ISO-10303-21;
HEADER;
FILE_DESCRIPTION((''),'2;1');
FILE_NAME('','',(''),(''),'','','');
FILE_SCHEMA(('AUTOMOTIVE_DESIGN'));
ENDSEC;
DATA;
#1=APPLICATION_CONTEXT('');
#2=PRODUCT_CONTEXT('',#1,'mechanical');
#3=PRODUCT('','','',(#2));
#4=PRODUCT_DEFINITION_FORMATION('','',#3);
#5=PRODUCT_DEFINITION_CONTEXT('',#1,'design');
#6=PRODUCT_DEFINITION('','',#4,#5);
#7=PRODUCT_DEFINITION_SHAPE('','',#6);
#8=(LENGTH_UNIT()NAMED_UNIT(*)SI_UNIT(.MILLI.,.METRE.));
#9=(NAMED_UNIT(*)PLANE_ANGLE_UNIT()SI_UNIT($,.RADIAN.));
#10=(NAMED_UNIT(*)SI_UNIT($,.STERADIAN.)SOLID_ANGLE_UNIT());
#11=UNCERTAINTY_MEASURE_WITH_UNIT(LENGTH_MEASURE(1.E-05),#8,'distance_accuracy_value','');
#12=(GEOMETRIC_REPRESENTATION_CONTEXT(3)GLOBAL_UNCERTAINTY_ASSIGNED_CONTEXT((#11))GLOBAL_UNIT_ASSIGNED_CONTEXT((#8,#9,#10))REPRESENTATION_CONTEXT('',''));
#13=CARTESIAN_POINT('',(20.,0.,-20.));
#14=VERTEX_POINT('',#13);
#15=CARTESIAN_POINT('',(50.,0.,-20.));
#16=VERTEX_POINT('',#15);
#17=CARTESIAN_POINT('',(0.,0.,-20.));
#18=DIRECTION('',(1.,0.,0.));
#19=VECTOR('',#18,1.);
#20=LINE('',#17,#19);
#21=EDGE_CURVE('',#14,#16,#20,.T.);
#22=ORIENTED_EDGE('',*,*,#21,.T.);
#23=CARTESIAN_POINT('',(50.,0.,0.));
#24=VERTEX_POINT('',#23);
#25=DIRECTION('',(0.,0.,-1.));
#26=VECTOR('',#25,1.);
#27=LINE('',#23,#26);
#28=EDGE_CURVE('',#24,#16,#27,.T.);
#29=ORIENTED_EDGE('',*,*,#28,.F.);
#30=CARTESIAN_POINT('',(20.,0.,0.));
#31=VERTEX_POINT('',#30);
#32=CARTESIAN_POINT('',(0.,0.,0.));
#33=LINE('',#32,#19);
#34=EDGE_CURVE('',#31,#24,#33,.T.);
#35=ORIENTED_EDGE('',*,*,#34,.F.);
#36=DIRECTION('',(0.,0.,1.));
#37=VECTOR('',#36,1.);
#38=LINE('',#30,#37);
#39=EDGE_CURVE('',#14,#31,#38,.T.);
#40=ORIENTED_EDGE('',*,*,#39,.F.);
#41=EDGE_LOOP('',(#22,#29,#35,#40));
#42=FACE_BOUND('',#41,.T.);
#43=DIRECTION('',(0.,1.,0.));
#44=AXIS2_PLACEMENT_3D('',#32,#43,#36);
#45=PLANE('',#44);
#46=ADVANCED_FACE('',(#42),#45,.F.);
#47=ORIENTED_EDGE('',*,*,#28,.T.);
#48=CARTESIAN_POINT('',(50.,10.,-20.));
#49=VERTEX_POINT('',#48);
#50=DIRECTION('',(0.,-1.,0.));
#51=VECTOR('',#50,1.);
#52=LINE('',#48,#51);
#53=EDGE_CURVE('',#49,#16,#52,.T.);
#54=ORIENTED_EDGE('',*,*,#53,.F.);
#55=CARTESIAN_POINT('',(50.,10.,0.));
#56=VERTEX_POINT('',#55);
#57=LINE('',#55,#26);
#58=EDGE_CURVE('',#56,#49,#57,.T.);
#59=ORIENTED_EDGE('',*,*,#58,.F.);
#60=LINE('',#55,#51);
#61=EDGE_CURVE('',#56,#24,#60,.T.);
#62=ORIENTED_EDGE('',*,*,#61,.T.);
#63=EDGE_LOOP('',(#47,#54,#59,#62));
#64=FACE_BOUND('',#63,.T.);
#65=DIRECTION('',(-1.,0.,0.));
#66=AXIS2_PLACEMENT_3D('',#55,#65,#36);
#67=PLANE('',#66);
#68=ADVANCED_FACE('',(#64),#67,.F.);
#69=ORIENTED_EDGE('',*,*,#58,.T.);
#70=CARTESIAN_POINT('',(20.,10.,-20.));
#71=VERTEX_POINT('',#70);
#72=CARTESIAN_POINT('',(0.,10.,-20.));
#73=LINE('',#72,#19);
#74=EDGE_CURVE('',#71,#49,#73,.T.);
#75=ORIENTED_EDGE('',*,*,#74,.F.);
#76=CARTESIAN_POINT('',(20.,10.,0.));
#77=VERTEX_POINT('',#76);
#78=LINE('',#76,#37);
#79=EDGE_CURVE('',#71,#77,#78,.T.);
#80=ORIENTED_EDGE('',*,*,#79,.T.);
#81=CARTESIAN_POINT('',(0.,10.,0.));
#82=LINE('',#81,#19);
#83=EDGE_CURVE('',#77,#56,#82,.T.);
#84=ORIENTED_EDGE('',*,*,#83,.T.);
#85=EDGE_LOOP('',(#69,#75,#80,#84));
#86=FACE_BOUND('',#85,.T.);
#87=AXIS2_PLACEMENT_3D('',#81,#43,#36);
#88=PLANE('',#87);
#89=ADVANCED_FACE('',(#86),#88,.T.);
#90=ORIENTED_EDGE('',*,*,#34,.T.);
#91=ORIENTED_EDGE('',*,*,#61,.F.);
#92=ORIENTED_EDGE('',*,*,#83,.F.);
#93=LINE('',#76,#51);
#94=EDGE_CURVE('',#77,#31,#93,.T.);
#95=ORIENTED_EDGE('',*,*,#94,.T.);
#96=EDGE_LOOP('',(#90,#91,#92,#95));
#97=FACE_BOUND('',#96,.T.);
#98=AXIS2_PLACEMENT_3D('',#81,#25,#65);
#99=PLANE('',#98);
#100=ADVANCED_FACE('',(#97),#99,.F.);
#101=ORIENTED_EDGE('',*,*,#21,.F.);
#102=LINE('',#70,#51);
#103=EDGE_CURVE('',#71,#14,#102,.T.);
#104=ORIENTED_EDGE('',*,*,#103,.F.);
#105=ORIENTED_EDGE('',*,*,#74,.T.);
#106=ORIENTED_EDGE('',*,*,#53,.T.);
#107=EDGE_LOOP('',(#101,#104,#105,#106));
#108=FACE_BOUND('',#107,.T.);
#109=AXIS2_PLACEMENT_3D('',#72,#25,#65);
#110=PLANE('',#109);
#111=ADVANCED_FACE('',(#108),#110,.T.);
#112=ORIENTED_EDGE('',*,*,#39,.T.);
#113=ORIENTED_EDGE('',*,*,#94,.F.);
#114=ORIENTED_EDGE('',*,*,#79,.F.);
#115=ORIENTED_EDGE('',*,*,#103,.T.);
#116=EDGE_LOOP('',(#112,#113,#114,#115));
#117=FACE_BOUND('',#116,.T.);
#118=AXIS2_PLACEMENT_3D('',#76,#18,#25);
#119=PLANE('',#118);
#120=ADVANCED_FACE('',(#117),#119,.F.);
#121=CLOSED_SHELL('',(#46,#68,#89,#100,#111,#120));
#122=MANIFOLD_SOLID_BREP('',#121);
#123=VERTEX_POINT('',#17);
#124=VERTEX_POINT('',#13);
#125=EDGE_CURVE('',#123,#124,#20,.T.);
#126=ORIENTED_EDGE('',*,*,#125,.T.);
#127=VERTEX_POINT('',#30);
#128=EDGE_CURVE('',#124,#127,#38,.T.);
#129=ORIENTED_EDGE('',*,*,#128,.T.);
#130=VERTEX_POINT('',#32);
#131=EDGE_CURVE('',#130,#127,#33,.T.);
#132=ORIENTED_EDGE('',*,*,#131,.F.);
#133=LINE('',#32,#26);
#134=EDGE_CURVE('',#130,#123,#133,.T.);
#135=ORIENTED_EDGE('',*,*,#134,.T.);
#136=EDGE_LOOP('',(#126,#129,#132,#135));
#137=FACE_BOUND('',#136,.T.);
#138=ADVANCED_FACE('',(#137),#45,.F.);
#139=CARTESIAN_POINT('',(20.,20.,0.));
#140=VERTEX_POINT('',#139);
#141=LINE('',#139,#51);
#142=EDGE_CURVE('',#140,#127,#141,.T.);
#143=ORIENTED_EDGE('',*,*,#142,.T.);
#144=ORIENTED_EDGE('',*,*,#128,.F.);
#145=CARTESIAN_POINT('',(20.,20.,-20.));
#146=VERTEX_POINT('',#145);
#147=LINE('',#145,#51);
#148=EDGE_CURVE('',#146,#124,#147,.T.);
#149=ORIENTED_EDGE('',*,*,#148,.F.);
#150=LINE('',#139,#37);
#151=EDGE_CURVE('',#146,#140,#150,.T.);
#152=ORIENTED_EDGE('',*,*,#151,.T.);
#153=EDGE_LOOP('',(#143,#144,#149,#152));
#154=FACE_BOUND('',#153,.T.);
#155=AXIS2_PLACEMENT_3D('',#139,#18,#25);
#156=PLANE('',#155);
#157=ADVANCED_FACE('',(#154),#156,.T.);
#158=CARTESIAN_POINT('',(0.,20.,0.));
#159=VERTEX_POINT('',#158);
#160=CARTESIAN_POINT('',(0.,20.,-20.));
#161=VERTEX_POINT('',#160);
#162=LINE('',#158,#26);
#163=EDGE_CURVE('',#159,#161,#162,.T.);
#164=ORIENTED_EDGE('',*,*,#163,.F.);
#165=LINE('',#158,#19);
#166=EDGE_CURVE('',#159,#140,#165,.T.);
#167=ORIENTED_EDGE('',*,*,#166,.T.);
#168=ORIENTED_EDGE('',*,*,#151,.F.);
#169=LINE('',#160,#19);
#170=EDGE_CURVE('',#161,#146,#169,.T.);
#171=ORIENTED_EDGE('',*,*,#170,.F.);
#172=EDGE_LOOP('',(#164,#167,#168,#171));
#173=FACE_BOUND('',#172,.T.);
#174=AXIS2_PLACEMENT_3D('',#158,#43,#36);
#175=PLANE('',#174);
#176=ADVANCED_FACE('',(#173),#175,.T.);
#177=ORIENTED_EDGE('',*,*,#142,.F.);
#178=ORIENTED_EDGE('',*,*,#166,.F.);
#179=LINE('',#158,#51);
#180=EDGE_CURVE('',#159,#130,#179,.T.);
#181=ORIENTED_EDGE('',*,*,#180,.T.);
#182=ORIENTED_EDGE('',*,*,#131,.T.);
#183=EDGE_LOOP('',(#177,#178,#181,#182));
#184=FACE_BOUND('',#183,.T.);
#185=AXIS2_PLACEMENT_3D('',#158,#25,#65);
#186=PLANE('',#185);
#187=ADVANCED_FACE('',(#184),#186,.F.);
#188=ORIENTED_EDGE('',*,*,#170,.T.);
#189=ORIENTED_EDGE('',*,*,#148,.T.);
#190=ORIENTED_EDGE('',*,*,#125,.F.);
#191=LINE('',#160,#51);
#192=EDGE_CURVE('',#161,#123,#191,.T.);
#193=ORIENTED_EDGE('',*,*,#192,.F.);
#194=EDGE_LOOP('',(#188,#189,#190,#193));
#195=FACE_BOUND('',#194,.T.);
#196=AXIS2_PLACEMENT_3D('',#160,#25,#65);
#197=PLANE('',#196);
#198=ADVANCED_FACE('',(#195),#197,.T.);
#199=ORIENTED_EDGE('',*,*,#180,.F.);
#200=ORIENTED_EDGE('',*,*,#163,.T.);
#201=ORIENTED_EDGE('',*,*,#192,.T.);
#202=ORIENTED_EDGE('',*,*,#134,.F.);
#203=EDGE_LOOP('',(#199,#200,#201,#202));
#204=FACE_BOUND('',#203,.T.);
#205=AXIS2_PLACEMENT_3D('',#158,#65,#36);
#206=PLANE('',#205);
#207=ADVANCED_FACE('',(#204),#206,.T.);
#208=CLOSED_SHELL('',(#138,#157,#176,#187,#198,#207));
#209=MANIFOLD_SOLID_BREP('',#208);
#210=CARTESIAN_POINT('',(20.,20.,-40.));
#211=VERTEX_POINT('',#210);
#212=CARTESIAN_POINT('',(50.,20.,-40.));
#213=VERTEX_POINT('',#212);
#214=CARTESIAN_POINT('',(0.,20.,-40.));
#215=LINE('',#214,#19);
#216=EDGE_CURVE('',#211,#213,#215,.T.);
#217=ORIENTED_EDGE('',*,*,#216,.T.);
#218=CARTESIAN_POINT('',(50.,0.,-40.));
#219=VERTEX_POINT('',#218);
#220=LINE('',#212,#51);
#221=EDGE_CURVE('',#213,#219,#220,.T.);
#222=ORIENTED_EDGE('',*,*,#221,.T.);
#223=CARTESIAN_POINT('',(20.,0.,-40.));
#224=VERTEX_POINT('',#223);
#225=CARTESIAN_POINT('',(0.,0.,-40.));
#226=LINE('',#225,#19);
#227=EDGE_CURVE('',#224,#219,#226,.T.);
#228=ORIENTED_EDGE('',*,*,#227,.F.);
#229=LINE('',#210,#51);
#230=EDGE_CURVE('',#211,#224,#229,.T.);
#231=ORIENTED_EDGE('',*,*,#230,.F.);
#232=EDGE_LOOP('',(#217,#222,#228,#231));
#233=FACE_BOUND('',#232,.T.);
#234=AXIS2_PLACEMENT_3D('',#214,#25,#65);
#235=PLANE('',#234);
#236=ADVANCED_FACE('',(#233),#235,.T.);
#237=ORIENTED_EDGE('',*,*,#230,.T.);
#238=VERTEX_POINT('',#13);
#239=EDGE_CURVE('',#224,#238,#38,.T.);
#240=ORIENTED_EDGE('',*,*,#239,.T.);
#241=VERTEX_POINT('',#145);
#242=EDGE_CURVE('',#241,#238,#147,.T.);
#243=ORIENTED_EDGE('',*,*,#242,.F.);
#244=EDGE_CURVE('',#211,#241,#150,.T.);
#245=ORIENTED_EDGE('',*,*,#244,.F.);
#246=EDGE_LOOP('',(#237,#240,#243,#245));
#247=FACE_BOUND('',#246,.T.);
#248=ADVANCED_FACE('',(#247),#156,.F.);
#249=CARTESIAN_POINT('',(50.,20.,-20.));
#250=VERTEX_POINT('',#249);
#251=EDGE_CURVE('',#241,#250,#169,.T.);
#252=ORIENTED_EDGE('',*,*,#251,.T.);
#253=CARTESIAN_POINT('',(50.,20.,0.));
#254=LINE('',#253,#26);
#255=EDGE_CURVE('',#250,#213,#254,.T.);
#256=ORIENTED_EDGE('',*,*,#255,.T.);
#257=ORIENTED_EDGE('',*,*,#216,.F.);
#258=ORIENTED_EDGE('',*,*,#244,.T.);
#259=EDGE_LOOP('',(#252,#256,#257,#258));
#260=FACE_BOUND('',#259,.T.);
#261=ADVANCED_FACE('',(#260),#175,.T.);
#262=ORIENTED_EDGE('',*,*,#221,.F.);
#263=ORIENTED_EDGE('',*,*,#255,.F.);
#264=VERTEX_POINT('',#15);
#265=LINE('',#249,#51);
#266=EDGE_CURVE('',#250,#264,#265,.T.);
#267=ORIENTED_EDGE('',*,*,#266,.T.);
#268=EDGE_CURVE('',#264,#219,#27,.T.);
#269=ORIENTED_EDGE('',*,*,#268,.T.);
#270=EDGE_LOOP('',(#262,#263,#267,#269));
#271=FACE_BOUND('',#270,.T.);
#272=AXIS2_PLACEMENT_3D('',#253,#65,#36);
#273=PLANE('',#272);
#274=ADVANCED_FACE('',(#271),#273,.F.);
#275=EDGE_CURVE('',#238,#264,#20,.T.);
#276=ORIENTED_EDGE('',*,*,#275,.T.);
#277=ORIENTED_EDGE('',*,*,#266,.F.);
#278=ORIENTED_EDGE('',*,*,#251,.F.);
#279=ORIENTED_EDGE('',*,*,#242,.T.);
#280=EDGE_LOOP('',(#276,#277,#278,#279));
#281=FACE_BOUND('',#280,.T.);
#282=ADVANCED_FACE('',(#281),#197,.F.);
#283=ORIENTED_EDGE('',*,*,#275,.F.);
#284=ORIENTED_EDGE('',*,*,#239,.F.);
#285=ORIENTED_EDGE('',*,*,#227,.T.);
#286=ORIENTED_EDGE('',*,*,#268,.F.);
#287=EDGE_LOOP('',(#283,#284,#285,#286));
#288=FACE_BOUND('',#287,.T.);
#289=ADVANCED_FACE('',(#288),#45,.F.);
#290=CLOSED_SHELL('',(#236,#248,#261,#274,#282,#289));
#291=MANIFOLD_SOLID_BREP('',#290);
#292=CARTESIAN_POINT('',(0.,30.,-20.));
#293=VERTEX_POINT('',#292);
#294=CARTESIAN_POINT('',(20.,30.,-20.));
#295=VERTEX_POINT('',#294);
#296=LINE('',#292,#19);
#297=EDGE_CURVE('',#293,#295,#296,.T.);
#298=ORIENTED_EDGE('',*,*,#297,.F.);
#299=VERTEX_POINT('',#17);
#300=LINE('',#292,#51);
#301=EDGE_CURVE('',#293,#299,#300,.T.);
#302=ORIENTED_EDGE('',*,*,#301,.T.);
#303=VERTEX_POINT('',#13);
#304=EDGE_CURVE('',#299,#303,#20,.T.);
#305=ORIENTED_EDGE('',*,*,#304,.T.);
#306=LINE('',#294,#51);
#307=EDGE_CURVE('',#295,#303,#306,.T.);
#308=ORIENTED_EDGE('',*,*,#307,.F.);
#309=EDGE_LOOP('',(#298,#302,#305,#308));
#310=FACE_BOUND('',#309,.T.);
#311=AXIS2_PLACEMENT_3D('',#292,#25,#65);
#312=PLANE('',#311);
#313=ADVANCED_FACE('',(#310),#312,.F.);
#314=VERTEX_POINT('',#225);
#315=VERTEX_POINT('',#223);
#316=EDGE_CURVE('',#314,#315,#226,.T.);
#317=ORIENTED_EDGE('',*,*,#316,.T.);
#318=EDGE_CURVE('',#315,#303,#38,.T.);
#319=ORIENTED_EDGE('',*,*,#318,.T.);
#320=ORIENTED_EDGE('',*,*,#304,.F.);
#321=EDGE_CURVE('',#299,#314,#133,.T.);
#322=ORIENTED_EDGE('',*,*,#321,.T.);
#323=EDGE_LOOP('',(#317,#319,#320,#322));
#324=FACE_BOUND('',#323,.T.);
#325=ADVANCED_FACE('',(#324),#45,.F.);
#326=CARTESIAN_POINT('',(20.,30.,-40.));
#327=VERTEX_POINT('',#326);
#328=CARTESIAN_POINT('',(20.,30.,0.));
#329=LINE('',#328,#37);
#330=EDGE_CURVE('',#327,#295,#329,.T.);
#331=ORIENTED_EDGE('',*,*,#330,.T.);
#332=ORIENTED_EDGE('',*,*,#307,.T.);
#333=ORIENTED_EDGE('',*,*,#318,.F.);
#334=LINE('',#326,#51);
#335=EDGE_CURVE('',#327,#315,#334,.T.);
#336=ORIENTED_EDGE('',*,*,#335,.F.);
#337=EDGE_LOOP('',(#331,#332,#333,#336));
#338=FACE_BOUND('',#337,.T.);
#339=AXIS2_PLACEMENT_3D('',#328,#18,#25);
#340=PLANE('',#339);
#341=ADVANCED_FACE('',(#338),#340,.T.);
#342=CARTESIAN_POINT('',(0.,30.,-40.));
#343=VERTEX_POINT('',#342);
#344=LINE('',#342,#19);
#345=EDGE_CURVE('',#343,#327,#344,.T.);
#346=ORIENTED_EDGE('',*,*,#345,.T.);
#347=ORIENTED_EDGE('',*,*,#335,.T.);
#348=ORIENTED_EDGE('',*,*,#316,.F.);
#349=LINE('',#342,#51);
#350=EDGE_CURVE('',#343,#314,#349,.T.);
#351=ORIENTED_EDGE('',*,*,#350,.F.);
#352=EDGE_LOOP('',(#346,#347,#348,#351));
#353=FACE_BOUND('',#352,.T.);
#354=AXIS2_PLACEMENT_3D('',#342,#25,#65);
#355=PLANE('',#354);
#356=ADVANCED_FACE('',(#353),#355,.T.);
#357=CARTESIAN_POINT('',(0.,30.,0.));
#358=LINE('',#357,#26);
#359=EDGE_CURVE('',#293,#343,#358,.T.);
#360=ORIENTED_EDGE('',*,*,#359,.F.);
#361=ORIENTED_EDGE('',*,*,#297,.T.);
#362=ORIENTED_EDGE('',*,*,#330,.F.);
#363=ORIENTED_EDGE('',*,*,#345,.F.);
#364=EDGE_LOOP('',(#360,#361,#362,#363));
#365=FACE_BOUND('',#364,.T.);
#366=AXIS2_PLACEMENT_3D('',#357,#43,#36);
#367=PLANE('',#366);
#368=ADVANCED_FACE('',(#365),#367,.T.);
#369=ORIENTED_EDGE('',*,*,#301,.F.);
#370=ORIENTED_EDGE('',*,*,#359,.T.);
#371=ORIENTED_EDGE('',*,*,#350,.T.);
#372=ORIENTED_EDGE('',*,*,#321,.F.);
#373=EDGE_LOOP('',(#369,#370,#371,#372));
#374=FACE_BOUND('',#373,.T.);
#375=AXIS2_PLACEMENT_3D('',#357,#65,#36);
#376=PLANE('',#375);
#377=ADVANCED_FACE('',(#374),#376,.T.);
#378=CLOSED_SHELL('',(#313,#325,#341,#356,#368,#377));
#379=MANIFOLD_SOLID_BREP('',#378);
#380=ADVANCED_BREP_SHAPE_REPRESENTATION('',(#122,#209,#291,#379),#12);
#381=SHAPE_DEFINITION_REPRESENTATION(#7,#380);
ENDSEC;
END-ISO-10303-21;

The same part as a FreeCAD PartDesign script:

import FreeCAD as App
import Part
import Sketcher

V = App.Vector
Q = App.Units.Quantity


def add_polygon(sketch, points):
    """Adds a closed chain of lines whose ends are joined by coincident constraints."""
    first, n = sketch.GeometryCount, len(points)
    for a, b in zip(points, points[1:] + points[:1]):
        sketch.addGeometry(Part.LineSegment(App.Vector(*a, 0), App.Vector(*b, 0)), False)
    for i in range(n):
        sketch.addConstraint(Sketcher.Constraint("Coincident", first + i, 2, first + (i + 1) % n, 1))

doc = App.newDocument("Part")
body = doc.addObject("PartDesign::Body", "Body")

# Sketch on XZ plane
sketch1 = body.newObject("Sketcher::SketchObject", "Sketch")
sketch1.AttachmentSupport = (doc.getObject("XZ_Plane"), [""])
sketch1.MapMode = "FlatFace"
add_polygon(sketch1, [(0, -20), (0, 0), (20, 0), (20, -20)])  # lines 0-3
sketch1.addConstraint(Sketcher.Constraint("Vertical", 0))
sketch1.addConstraint(Sketcher.Constraint("Horizontal", 1))
sketch1.addConstraint(Sketcher.Constraint("Vertical", 2))
sketch1.addConstraint(Sketcher.Constraint("Horizontal", 3))
sketch1.addConstraint(Sketcher.Constraint("Coincident", 0, 2, -1, 1))
sketch1.addConstraint(Sketcher.Constraint("Equal", 3, 0))
sketch1.addConstraint(Sketcher.Constraint("DistanceX", 1, 1, 1, 2, Q("20 mm")))
pad1 = body.newObject("PartDesign::Pad", "Pad")
pad1.Profile = sketch1
pad1.Length = 20
pad1.Reversed = True
body2 = doc.addObject("PartDesign::Body", "Body001")

# Sketch on XZ plane
sketch2 = body2.newObject("Sketcher::SketchObject", "Sketch001")
sketch2.AttachmentSupport = (doc.getObject("XZ_Plane001"), [""])
sketch2.MapMode = "FlatFace"
add_polygon(sketch2, [(20, -40), (20, -20), (50, -20), (50, -40)])  # lines 0-3
sketch2.addConstraint(Sketcher.Constraint("Vertical", 0))
sketch2.addConstraint(Sketcher.Constraint("Horizontal", 1))
sketch2.addConstraint(Sketcher.Constraint("Vertical", 2))
sketch2.addConstraint(Sketcher.Constraint("Horizontal", 3))
sketch2.addConstraint(Sketcher.Constraint("DistanceX", 1, 1, 1, 2, Q("30 mm")))
sketch2.addConstraint(Sketcher.Constraint("DistanceY", 0, 1, 0, 2, Q("20 mm")))
sketch2.addConstraint(Sketcher.Constraint("DistanceX", -1, 1, 0, 2, Q("20 mm")))
sketch2.addConstraint(Sketcher.Constraint("DistanceY", 0, 2, -1, 1, Q("20 mm")))
pad2 = body2.newObject("PartDesign::Pad", "Pad001")
pad2.Profile = sketch2
pad2.Length = 20
pad2.Reversed = True
body3 = doc.addObject("PartDesign::Body", "Body002")

# Sketch on XZ plane
sketch3 = body3.newObject("Sketcher::SketchObject", "Sketch002")
sketch3.AttachmentSupport = (doc.getObject("XZ_Plane002"), [""])
sketch3.MapMode = "FlatFace"
add_polygon(sketch3, [(20, -20), (20, 0), (50, 0), (50, -20)])  # lines 0-3
sketch3.addConstraint(Sketcher.Constraint("Vertical", 0))
sketch3.addConstraint(Sketcher.Constraint("Horizontal", 1))
sketch3.addConstraint(Sketcher.Constraint("Vertical", 2))
sketch3.addConstraint(Sketcher.Constraint("Horizontal", 3))
sketch3.addConstraint(Sketcher.Constraint("PointOnObject", 0, 2, -1))
sketch3.addConstraint(Sketcher.Constraint("DistanceX", 1, 1, 1, 2, Q("30 mm")))
sketch3.addConstraint(Sketcher.Constraint("DistanceY", 0, 1, 0, 2, Q("20 mm")))
sketch3.addConstraint(Sketcher.Constraint("DistanceX", -1, 1, 0, 2, Q("20 mm")))
pad3 = body3.newObject("PartDesign::Pad", "Pad002")
pad3.Profile = sketch3
pad3.Length = 10
pad3.Reversed = True
body4 = doc.addObject("PartDesign::Body", "Body003")

# Sketch on XZ plane
sketch4 = body4.newObject("Sketcher::SketchObject", "Sketch003")
sketch4.AttachmentSupport = (doc.getObject("XZ_Plane003"), [""])
sketch4.MapMode = "FlatFace"
add_polygon(sketch4, [(0, -40), (0, -20), (20, -20), (20, -40)])  # lines 0-3
sketch4.addConstraint(Sketcher.Constraint("Vertical", 0))
sketch4.addConstraint(Sketcher.Constraint("Horizontal", 1))
sketch4.addConstraint(Sketcher.Constraint("Vertical", 2))
sketch4.addConstraint(Sketcher.Constraint("Horizontal", 3))
sketch4.addConstraint(Sketcher.Constraint("PointOnObject", 0, 2, -2))
sketch4.addConstraint(Sketcher.Constraint("Equal", 3, 0))
sketch4.addConstraint(Sketcher.Constraint("DistanceX", 1, 1, 1, 2, Q("20 mm")))
sketch4.addConstraint(Sketcher.Constraint("DistanceY", 0, 2, -1, 1, Q("20 mm")))
pad4 = body4.newObject("PartDesign::Pad", "Pad003")
pad4.Profile = sketch4
pad4.Length = 30
pad4.Reversed = True

doc.recompute()
